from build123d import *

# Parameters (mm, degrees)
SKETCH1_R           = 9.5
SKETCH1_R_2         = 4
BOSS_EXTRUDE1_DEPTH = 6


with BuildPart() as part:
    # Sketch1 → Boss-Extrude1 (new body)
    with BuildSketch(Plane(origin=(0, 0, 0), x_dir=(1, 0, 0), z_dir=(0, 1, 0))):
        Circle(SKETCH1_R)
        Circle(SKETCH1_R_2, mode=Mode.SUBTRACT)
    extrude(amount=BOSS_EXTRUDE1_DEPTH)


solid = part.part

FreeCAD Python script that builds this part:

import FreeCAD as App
import Part
import Sketcher
Q = App.Units.Quantity

doc = App.newDocument("Part")
body = doc.addObject("PartDesign::Body", "Body")

sketch1 = doc.addObject("Sketcher::SketchObject", "Sketch")
body.addObject(sketch1)
sketch1.AttachmentSupport = (doc.XZ_Plane, [""])
sketch1.MapMode = "FlatFace"
sketch1.addGeometry([
    Part.Circle(App.Vector(0, 0, 0), App.Vector(0, 0, 1), 9.5),
    Part.Circle(App.Vector(0, 0, 0), App.Vector(0, 0, 1), 4),
], False)
sketch1.addConstraint([
    Sketcher.Constraint("Coincident", 0, 3, -1, 1),
    Sketcher.Constraint("Coincident", 1, 3, -1, 1),
    Sketcher.Constraint("Diameter", 0, Q("19 mm")),
    Sketcher.Constraint("Diameter", 1, Q("8 mm")),
])
pad1 = doc.addObject("PartDesign::Pad", "Pad")
body.addObject(pad1)
pad1.Profile = sketch1
pad1.Length = 6
pad1.Reversed = True

doc.recompute()
